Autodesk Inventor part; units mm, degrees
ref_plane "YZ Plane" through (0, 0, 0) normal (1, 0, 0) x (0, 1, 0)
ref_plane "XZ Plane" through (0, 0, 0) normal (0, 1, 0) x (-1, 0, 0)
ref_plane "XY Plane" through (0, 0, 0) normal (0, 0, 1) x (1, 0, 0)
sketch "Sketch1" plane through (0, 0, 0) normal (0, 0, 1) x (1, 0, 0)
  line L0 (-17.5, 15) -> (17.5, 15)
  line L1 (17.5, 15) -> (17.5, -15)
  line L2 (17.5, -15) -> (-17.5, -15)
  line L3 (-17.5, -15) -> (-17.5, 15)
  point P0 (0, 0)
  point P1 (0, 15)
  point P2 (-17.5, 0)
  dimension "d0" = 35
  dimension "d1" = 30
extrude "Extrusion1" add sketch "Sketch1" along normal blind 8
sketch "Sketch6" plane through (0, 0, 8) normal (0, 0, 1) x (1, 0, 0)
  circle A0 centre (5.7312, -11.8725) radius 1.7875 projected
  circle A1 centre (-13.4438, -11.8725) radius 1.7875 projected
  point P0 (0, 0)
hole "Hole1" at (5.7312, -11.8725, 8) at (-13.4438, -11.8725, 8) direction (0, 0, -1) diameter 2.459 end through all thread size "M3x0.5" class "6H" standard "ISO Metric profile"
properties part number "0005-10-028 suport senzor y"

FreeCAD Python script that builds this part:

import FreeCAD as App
import Part
import Sketcher

V = App.Vector
Q = App.Units.Quantity


def add_polygon(sketch, points):
    """Adds a closed chain of lines whose ends are joined by coincident constraints."""
    first, n = sketch.GeometryCount, len(points)
    for a, b in zip(points, points[1:] + points[:1]):
        sketch.addGeometry(Part.LineSegment(App.Vector(*a, 0), App.Vector(*b, 0)), False)
    for i in range(n):
        sketch.addConstraint(Sketcher.Constraint("Coincident", first + i, 2, first + (i + 1) % n, 1))

doc = App.newDocument("Part")
body = doc.addObject("PartDesign::Body", "Body")

# Sketch on XY plane
sketch1 = body.newObject("Sketcher::SketchObject", "Sketch")
sketch1.AttachmentSupport = (doc.getObject("XY_Plane"), [""])
sketch1.MapMode = "FlatFace"
add_polygon(sketch1, [(17.5, 15), (-17.5, 15), (-17.5, -15), (17.5, -15)])  # lines 0-3
sketch1.addConstraint(Sketcher.Constraint("Horizontal", 0))
sketch1.addConstraint(Sketcher.Constraint("Vertical", 1))
sketch1.addConstraint(Sketcher.Constraint("Horizontal", 2))
sketch1.addConstraint(Sketcher.Constraint("Vertical", 3))
sketch1.addConstraint(Sketcher.Constraint("Symmetric", 0, 2, 2, 2, -1, 1))
sketch1.addConstraint(Sketcher.Constraint("DistanceX", 0, 2, 0, 1, Q("35 mm")))
sketch1.addConstraint(Sketcher.Constraint("DistanceY", 1, 2, 1, 1, Q("30 mm")))
pad1 = body.newObject("PartDesign::Pad", "Pad")
pad1.Profile = sketch1
pad1.Length = 8

# Sketch on XY plane
sketch2 = body.newObject("Sketcher::SketchObject", "Sketch001")
sketch2.AttachmentSupport = (doc.getObject("XY_Plane"), [""])
sketch2.MapMode = "FlatFace"
sketch2.AttachmentOffset = App.Placement(V(0, 0, 8), App.Rotation())
sketch2.addGeometry(Part.Circle(V(5.7312, -11.8725, 0), V(0, 0, 1), 1.2295), False)
sketch2.addGeometry(Part.Circle(V(-13.4438, -11.8725, 0), V(0, 0, 1), 1.2295), False)
sketch2.addConstraint(Sketcher.Constraint("Equal", 0, 1))
sketch2.addConstraint(Sketcher.Constraint("Horizontal", 0, 3, 1, 3))
sketch2.addConstraint(Sketcher.Constraint("Diameter", 0, Q("2.459 mm")))
sketch2.addConstraint(Sketcher.Constraint("DistanceX", 1, 3, 0, 3, Q("19.175 mm")))
sketch2.addConstraint(Sketcher.Constraint("DistanceX", -1, 1, 0, 3, Q("5.7312 mm")))
sketch2.addConstraint(Sketcher.Constraint("DistanceY", 0, 3, -1, 1, Q("11.8725 mm")))
doc.recompute()
hole = body.newObject("PartDesign::Hole", "Hole")
hole.Profile = sketch2
hole.ThreadType = "None"
hole.Diameter = 2.459
hole.DepthType = "ThroughAll"

doc.recompute()
